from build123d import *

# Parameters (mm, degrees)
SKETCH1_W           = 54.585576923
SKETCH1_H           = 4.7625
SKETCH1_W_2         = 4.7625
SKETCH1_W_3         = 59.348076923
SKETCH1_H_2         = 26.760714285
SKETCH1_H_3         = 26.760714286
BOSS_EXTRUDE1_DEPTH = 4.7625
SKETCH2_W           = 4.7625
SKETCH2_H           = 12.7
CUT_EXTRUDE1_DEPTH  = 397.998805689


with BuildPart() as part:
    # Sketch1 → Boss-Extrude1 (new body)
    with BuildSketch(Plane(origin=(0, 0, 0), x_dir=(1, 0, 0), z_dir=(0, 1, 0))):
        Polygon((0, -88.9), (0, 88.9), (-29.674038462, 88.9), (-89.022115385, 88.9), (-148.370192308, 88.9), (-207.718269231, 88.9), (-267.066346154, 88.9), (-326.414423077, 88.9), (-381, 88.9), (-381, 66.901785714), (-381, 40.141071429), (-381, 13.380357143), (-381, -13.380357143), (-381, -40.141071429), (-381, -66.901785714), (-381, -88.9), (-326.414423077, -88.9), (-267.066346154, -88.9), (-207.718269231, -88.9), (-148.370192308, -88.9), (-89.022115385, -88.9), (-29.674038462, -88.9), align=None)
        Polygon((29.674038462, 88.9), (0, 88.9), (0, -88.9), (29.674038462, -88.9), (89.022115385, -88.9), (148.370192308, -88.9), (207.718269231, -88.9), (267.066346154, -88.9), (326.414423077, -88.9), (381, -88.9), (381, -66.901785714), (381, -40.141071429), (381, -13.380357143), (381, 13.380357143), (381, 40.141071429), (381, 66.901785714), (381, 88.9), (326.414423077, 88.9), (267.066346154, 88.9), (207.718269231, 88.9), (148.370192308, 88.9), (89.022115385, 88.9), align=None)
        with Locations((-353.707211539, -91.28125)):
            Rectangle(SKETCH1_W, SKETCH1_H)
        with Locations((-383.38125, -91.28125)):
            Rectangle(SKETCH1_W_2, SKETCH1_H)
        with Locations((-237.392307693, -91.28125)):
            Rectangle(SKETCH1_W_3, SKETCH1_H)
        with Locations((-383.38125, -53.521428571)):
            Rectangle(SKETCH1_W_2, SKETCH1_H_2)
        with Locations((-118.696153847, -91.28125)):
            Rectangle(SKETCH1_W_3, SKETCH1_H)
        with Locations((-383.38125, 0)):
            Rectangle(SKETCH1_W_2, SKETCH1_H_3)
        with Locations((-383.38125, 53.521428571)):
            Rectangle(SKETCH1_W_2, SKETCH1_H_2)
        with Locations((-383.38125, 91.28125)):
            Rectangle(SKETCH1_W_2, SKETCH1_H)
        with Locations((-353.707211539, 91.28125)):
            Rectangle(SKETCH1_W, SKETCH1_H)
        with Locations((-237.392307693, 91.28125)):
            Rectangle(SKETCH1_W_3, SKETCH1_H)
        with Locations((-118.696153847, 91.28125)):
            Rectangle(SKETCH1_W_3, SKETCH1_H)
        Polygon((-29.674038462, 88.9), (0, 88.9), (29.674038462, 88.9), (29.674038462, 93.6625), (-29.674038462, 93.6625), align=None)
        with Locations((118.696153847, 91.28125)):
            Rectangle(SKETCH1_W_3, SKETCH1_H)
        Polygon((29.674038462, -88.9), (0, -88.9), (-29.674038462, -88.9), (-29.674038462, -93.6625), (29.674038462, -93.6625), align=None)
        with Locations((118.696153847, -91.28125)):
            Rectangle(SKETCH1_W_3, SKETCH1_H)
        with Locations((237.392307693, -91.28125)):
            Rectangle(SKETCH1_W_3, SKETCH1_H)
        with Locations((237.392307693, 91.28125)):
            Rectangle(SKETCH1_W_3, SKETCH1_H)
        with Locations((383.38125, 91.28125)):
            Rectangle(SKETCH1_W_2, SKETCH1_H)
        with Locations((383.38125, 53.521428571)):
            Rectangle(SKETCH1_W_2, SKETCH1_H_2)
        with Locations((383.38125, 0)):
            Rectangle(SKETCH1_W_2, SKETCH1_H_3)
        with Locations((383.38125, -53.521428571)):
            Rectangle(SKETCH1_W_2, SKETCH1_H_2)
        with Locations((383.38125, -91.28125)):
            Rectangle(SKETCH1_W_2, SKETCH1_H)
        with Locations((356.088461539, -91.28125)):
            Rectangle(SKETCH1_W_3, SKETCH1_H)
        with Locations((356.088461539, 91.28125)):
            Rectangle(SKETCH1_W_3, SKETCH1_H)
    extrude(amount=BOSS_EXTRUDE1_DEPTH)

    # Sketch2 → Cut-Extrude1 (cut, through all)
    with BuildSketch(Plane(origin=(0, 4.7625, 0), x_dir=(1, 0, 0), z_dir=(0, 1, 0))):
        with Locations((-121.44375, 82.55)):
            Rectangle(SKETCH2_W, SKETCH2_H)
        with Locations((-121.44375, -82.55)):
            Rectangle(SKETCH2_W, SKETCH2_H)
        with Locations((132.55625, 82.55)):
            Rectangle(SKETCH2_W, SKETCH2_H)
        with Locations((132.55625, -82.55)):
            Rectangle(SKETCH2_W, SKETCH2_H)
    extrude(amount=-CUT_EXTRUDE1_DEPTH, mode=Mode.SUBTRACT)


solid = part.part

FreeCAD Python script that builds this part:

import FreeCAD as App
import Part
import Sketcher
from FreeCAD import Vector
Q = App.Units.Quantity


def add_polygon(sketch, points):
    """Adds a closed chain of lines whose ends are joined by coincident constraints."""
    first, n = sketch.GeometryCount, len(points)
    for a, b in zip(points, points[1:] + points[:1]):
        sketch.addGeometry(Part.LineSegment(App.Vector(*a, 0), App.Vector(*b, 0)), False)
    for i in range(n):
        sketch.addConstraint(Sketcher.Constraint("Coincident", first + i, 2, first + (i + 1) % n, 1))

doc = App.newDocument("Part")
body = doc.addObject("PartDesign::Body", "Body")

# Sketch on XZ plane
sketch1 = body.newObject("Sketcher::SketchObject", "Sketch")
sketch1.AttachmentSupport = (doc.getObject("XZ_Plane"), [""])
sketch1.MapMode = "FlatFace"
add_polygon(sketch1, [(-381, -88.9), (-381, -66.9), (-385.8, -66.9), (-385.8, -40.1), (-381, -40.1), (-381, -13.4), (-385.8, -13.4), (-385.8, 13.4), (-381, 13.4), (-381, 40.1), (-385.8, 40.1), (-385.8, 66.9), (-381, 66.9), (-381, 88.9), (-385.8, 88.9), (-385.8, 93.7), (-326.4, 93.7), (-326.4, 88.9), (-267.1, 88.9), (-267.1, 93.7), (-207.7, 93.7), (-207.7, 88.9), (-148.4, 88.9), (-148.4, 93.7), (-89, 93.7), (-89, 88.9), (-29.7, 88.9), (-29.7, 93.7), (29.7, 93.7), (29.7, 88.9), (89, 88.9), (89, 93.7), (148.4, 93.7), (148.4, 88.9), (207.7, 88.9), (207.7, 93.7), (267.1, 93.7), (267.1, 88.9), (326.4, 88.9), (326.4, 93.7), (385.8, 93.7), (385.8, 88.9), (381, 88.9), (381, 66.9), (385.8, 66.9), (385.8, 40.1), (381, 40.1), (381, 13.4), (385.8, 13.4), (385.8, -13.4), (381, -13.4), (381, -40.1), (385.8, -40.1), (385.8, -66.9), (381, -66.9), (381, -88.9), (385.8, -88.9), (385.8, -93.7), (326.4, -93.7), (326.4, -88.9), (267.1, -88.9), (267.1, -93.7), (207.7, -93.7), (207.7, -88.9), (148.4, -88.9), (148.4, -93.7), (89, -93.7), (89, -88.9), (29.7, -88.9), (29.7, -93.7), (-29.7, -93.7), (-29.7, -88.9), (-89, -88.9), (-89, -93.7), (-148.4, -93.7), (-148.4, -88.9), (-207.7, -88.9), (-207.7, -93.7), (-267.1, -93.7), (-267.1, -88.9), (-326.4, -88.9), (-326.4, -93.7), (-385.8, -93.7), (-385.8, -88.9)])  # lines 0-83
sketch1.addConstraint([
    Sketcher.Constraint("Vertical", 0),
    Sketcher.Constraint("Horizontal", 1),
    Sketcher.Constraint("Vertical", 2),
    Sketcher.Constraint("Horizontal", 3),
    Sketcher.Constraint("Vertical", 4),
    Sketcher.Constraint("Horizontal", 5),
    Sketcher.Constraint("Vertical", 6),
    Sketcher.Constraint("Horizontal", 7),
    Sketcher.Constraint("Vertical", 8),
    Sketcher.Constraint("Horizontal", 9),
    Sketcher.Constraint("Vertical", 10),
    Sketcher.Constraint("Horizontal", 11),
    Sketcher.Constraint("Vertical", 12),
    Sketcher.Constraint("Horizontal", 13),
    Sketcher.Constraint("Vertical", 14),
    Sketcher.Constraint("Horizontal", 15),
    Sketcher.Constraint("Vertical", 16),
    Sketcher.Constraint("Horizontal", 17),
    Sketcher.Constraint("Vertical", 18),
    Sketcher.Constraint("Horizontal", 19),
    Sketcher.Constraint("Vertical", 20),
    Sketcher.Constraint("Horizontal", 21),
    Sketcher.Constraint("Vertical", 22),
    Sketcher.Constraint("Horizontal", 23),
    Sketcher.Constraint("Vertical", 24),
    Sketcher.Constraint("Horizontal", 25),
    Sketcher.Constraint("Vertical", 26),
    Sketcher.Constraint("Horizontal", 27),
    Sketcher.Constraint("Vertical", 28),
    Sketcher.Constraint("Horizontal", 29),
    Sketcher.Constraint("Vertical", 30),
    Sketcher.Constraint("Horizontal", 31),
    Sketcher.Constraint("Vertical", 32),
    Sketcher.Constraint("Horizontal", 33),
    Sketcher.Constraint("Vertical", 34),
    Sketcher.Constraint("Horizontal", 35),
    Sketcher.Constraint("Vertical", 36),
    Sketcher.Constraint("Horizontal", 37),
    Sketcher.Constraint("Vertical", 38),
    Sketcher.Constraint("Horizontal", 39),
    Sketcher.Constraint("Vertical", 40),
    Sketcher.Constraint("Horizontal", 41),
    Sketcher.Constraint("Vertical", 42),
    Sketcher.Constraint("Horizontal", 43),
    Sketcher.Constraint("Vertical", 44),
    Sketcher.Constraint("Horizontal", 45),
    Sketcher.Constraint("Vertical", 46),
    Sketcher.Constraint("Horizontal", 47),
    Sketcher.Constraint("Vertical", 48),
    Sketcher.Constraint("Horizontal", 49),
    Sketcher.Constraint("Vertical", 50),
    Sketcher.Constraint("Horizontal", 51),
    Sketcher.Constraint("Vertical", 52),
    Sketcher.Constraint("Horizontal", 53),
    Sketcher.Constraint("Vertical", 54),
    Sketcher.Constraint("Horizontal", 55),
    Sketcher.Constraint("Vertical", 56),
    Sketcher.Constraint("Horizontal", 57),
    Sketcher.Constraint("Vertical", 58),
    Sketcher.Constraint("Horizontal", 59),
    Sketcher.Constraint("Vertical", 60),
    Sketcher.Constraint("Horizontal", 61),
    Sketcher.Constraint("Vertical", 62),
    Sketcher.Constraint("Horizontal", 63),
    Sketcher.Constraint("Vertical", 64),
    Sketcher.Constraint("Horizontal", 65),
    Sketcher.Constraint("Vertical", 66),
    Sketcher.Constraint("Horizontal", 67),
    Sketcher.Constraint("Vertical", 68),
    Sketcher.Constraint("Horizontal", 69),
    Sketcher.Constraint("Vertical", 70),
    Sketcher.Constraint("Horizontal", 71),
    Sketcher.Constraint("Vertical", 72),
    Sketcher.Constraint("Horizontal", 73),
    Sketcher.Constraint("Vertical", 74),
    Sketcher.Constraint("Horizontal", 75),
    Sketcher.Constraint("Vertical", 76),
    Sketcher.Constraint("Horizontal", 77),
    Sketcher.Constraint("Vertical", 78),
    Sketcher.Constraint("Horizontal", 79),
    Sketcher.Constraint("Vertical", 80),
    Sketcher.Constraint("Horizontal", 81),
    Sketcher.Constraint("Vertical", 82),
    Sketcher.Constraint("Horizontal", 83),
    Sketcher.Constraint("Symmetric", 0, 2, 42, 2, -1, 1),
    Sketcher.Constraint("Symmetric", 2, 2, 44, 2, -1, 1),
    Sketcher.Constraint("Symmetric", 4, 2, 46, 2, -1, 1),
    Sketcher.Constraint("Symmetric", 6, 2, 48, 2, -1, 1),
    Sketcher.Constraint("Symmetric", 8, 2, 50, 2, -1, 1),
    Sketcher.Constraint("Symmetric", 10, 2, 52, 2, -1, 1),
    Sketcher.Constraint("Symmetric", 12, 2, 54, 2, -1, 1),
    Sketcher.Constraint("Symmetric", 14, 2, 56, 2, -1, 1),
    Sketcher.Constraint("Symmetric", 16, 2, 58, 2, -1, 1),
    Sketcher.Constraint("Symmetric", 18, 2, 60, 2, -1, 1),
    Sketcher.Constraint("Symmetric", 20, 2, 62, 2, -1, 1),
    Sketcher.Constraint("Symmetric", 22, 2, 64, 2, -1, 1),
    Sketcher.Constraint("Symmetric", 24, 2, 66, 2, -1, 1),
    Sketcher.Constraint("Symmetric", 26, 2, 68, 2, -1, 1),
    Sketcher.Constraint("Symmetric", 28, 2, 70, 2, -1, 1),
    Sketcher.Constraint("Symmetric", 30, 2, 72, 2, -1, 1),
    Sketcher.Constraint("Symmetric", 32, 2, 74, 2, -1, 1),
    Sketcher.Constraint("Symmetric", 34, 2, 76, 2, -1, 1),
    Sketcher.Constraint("Symmetric", 36, 2, 78, 2, -1, 1),
    Sketcher.Constraint("Symmetric", 38, 2, 80, 2, -1, 1),
    Sketcher.Constraint("Symmetric", 40, 2, 82, 2, -1, 1),
    Sketcher.Constraint("Symmetric", 25, 2, 28, 2, -2),
    Sketcher.Constraint("Symmetric", 23, 2, 30, 2, -2),
    Sketcher.Constraint("Symmetric", 21, 2, 32, 2, -2),
    Sketcher.Constraint("Symmetric", 19, 2, 34, 2, -2),
    Sketcher.Constraint("Symmetric", 17, 2, 36, 2, -2),
    Sketcher.Constraint("Symmetric", 15, 2, 38, 2, -2),
    Sketcher.Constraint("Symmetric", 13, 2, 40, 2, -2),
    Sketcher.Constraint("Symmetric", 11, 2, 42, 2, -2),
    Sketcher.Constraint("Symmetric", 9, 2, 44, 2, -2),
    Sketcher.Constraint("Symmetric", 7, 2, 46, 2, -2),
    Sketcher.Constraint("Horizontal", 13, 2, 16, 2),
    Sketcher.Constraint("Horizontal", 15, 2, 18, 2),
    Sketcher.Constraint("Horizontal", 17, 2, 20, 2),
    Sketcher.Constraint("Horizontal", 19, 2, 22, 2),
    Sketcher.Constraint("Horizontal", 21, 2, 24, 2),
    Sketcher.Constraint("Horizontal", 23, 2, 26, 2),
    Sketcher.Constraint("Vertical", 0, 2, 3, 2),
    Sketcher.Constraint("Vertical", 2, 2, 5, 2),
    Sketcher.Constraint("Vertical", 10, 2, 13, 2),
    Sketcher.Constraint("Equal", 15, 17),
    Sketcher.Constraint("Equal", 17, 19),
    Sketcher.Constraint("Equal", 19, 21),
    Sketcher.Constraint("Equal", 21, 23),
    Sketcher.Constraint("Equal", 23, 25),
    Sketcher.Constraint("Equal", 25, 27),
    Sketcher.Constraint("Equal", 2, 4),
    Sketcher.Constraint("Equal", 4, 6),
    Sketcher.Constraint("Equal", 83, 14),
    Sketcher.Constraint("DistanceX", 0, 2, -1, 1, Q("15 in")),
    Sketcher.Constraint("DistanceY", -1, 1, 12, 2, Q("3.5 in")),
    Sketcher.Constraint("DistanceX", 1, 2, 1, 1, Q("0.1875 in")),
    Sketcher.Constraint("DistanceY", 0, 1, 0, 2, 21.998214),
])
pad1 = body.newObject("PartDesign::Pad", "Pad")
pad1.Profile = sketch1
pad1.Length = Q("0.1875 in")
pad1.Reversed = True

# Sketch on XZ plane
sketch2 = body.newObject("Sketcher::SketchObject", "Sketch001")
sketch2.AttachmentSupport = (doc.getObject("XZ_Plane"), [""])
sketch2.MapMode = "FlatFace"
sketch2.AttachmentOffset = App.Placement(Vector(0, 0, -0.1875 * 25.4), App.Rotation())
add_polygon(sketch2, [(-123.8, -88.9), (-123.8, -76.2), (-119.1, -76.2), (-119.1, -88.9)])  # lines 0-3
add_polygon(sketch2, [(-123.8, 76.2), (-123.8, 88.9), (-119.1, 88.9), (-119.1, 76.2)])  # lines 4-7
add_polygon(sketch2, [(130.2, -88.9), (130.2, -76.2), (134.9, -76.2), (134.9, -88.9)])  # lines 8-11
add_polygon(sketch2, [(130.2, 76.2), (130.2, 88.9), (134.9, 88.9), (134.9, 76.2)])  # lines 12-15
sketch2.addConstraint([
    Sketcher.Constraint("Vertical", 0),
    Sketcher.Constraint("Horizontal", 1),
    Sketcher.Constraint("Vertical", 2),
    Sketcher.Constraint("Horizontal", 3),
    Sketcher.Constraint("Vertical", 4),
    Sketcher.Constraint("Horizontal", 5),
    Sketcher.Constraint("Vertical", 6),
    Sketcher.Constraint("Horizontal", 7),
    Sketcher.Constraint("Vertical", 8),
    Sketcher.Constraint("Horizontal", 9),
    Sketcher.Constraint("Vertical", 10),
    Sketcher.Constraint("Horizontal", 11),
    Sketcher.Constraint("Vertical", 12),
    Sketcher.Constraint("Horizontal", 13),
    Sketcher.Constraint("Vertical", 14),
    Sketcher.Constraint("Horizontal", 15),
    Sketcher.Constraint("Symmetric", 3, 2, 4, 2, -1),
    Sketcher.Constraint("Symmetric", 1, 2, 6, 2, -1),
    Sketcher.Constraint("Symmetric", 11, 2, 12, 2, -1),
    Sketcher.Constraint("Symmetric", 9, 2, 14, 2, -1),
    Sketcher.Constraint("Horizontal", 1, 2, 8, 2),
    Sketcher.Constraint("Horizontal", 3, 2, 10, 2),
    Sketcher.Constraint("Equal", 7, 9),
    Sketcher.Constraint("DistanceY", 0, 1, 0, 2, Q("0.5 in")),
    Sketcher.Constraint("DistanceY", 0, 2, -1, 1, Q("3 in")),
    Sketcher.Constraint("DistanceX", 0, 2, 8, 2, Q("10 in")),
    Sketcher.Constraint("DistanceX", 1, 1, 1, 2, Q("0.1875 in")),
    Sketcher.Constraint("DistanceX", 0, 2, -1, 1, Q("4.875 in")),
])
pocket1 = body.newObject("PartDesign::Pocket", "Pocket")
pocket1.Profile = sketch2
pocket1.Type = "ThroughAll"
pocket1.Reversed = True

doc.recompute()
